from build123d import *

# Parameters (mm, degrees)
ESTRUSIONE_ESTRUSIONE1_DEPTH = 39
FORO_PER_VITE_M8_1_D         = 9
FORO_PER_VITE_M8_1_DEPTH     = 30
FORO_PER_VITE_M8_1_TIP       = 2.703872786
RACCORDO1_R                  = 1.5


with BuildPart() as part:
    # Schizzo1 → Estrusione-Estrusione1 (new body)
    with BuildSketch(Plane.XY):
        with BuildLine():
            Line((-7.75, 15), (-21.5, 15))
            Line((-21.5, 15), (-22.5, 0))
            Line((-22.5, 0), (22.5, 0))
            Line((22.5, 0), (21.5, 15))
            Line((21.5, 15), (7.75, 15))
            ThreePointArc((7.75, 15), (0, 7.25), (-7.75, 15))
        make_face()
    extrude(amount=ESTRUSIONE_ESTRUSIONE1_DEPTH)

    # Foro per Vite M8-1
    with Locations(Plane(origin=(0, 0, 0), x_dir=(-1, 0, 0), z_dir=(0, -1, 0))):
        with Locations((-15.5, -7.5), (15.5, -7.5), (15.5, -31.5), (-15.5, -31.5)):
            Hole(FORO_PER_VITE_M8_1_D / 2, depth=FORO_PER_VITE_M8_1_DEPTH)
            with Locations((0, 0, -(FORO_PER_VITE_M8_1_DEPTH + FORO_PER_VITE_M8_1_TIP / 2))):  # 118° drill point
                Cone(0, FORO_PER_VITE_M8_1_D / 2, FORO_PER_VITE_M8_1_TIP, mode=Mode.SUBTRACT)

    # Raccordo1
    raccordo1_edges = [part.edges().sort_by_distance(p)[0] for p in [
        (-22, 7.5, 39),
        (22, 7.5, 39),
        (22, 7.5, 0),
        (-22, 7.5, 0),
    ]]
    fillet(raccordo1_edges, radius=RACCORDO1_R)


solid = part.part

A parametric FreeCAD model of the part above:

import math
import FreeCAD as App
import Part
import Sketcher
from FreeCAD import Vector
Q = App.Units.Quantity


def edges_at(feature, points):
    """Names of the edges that pass closest to the given points."""
    edges = feature.Shape.Edges
    near = lambda p: min(range(len(edges)), key=lambda i: edges[i].distToShape(Part.Vertex(*p))[0])
    return sorted({f"Edge{near(p) + 1}" for p in points})

doc = App.newDocument("Part")
body = doc.addObject("PartDesign::Body", "Body")

# Sketch on XY plane
sketch1 = body.newObject("Sketcher::SketchObject", "Sketch")
sketch1.AttachmentSupport = (doc.getObject("XY_Plane"), [""])
sketch1.MapMode = "FlatFace"
sketch1.addGeometry(Part.LineSegment(Vector(-7.75, 15, 0), Vector(-21.5, 15, 0)), False)
sketch1.addGeometry(Part.LineSegment(Vector(-21.5, 15, 0), Vector(-22.5, 0, 0)), False)
sketch1.addGeometry(Part.LineSegment(Vector(-22.5, 0, 0), Vector(22.5, 0, 0)), False)
sketch1.addGeometry(Part.LineSegment(Vector(22.5, 0, 0), Vector(21.5, 15, 0)), False)
sketch1.addGeometry(Part.LineSegment(Vector(21.5, 15, 0), Vector(7.75, 15, 0)), False)
sketch1.addGeometry(Part.ArcOfCircle(Part.Circle(Vector(0, 15, 0), Vector(0, 0, 1), 7.75), math.radians(180), math.radians(360)), False)
sketch1.addConstraint(Sketcher.Constraint("Coincident", 0, 2, 1, 1))
sketch1.addConstraint(Sketcher.Constraint("Coincident", 1, 2, 2, 1))
sketch1.addConstraint(Sketcher.Constraint("Coincident", 2, 2, 3, 1))
sketch1.addConstraint(Sketcher.Constraint("Coincident", 3, 2, 4, 1))
sketch1.addConstraint(Sketcher.Constraint("Coincident", 4, 2, 5, 2))
sketch1.addConstraint(Sketcher.Constraint("Coincident", 5, 1, 0, 1))
sketch1.addConstraint(Sketcher.Constraint("Horizontal", 0))
sketch1.addConstraint(Sketcher.Constraint("Horizontal", 2))
sketch1.addConstraint(Sketcher.Constraint("Horizontal", 4))
sketch1.addConstraint(Sketcher.Constraint("Symmetric", 1, 2, 2, 2, -1, 1))
sketch1.addConstraint(Sketcher.Constraint("Symmetric", 0, 2, 3, 2, -2))
sketch1.addConstraint(Sketcher.Constraint("PointOnObject", 5, 3, -2))
sketch1.addConstraint(Sketcher.Constraint("Horizontal", 5, 3, 0, 2))
sketch1.addConstraint(Sketcher.Constraint("DistanceX", 2, 1, 2, 2, Q("45 mm")))
sketch1.addConstraint(Sketcher.Constraint("Radius", 5, Q("7.75 mm")))
sketch1.addConstraint(Sketcher.Constraint("DistanceY", -1, 1, 5, 3, Q("15 mm")))
sketch1.addConstraint(Sketcher.Constraint("DistanceX", 1, 2, 0, 2, Q("1 mm")))
pad1 = body.newObject("PartDesign::Pad", "Pad")
pad1.Profile = sketch1
pad1.Length = 39

# Sketch on XZ plane
sketch2 = body.newObject("Sketcher::SketchObject", "Sketch001")
sketch2.AttachmentSupport = (doc.getObject("XZ_Plane"), [""])
sketch2.MapMode = "FlatFace"
sketch2.addGeometry(Part.Circle(Vector(15.5, 7.5, 0), Vector(0, 0, 1), 4.5), False)
sketch2.addGeometry(Part.Circle(Vector(-15.5, 7.5, 0), Vector(0, 0, 1), 4.5), False)
sketch2.addGeometry(Part.Circle(Vector(-15.5, 31.5, 0), Vector(0, 0, 1), 4.5), False)
sketch2.addGeometry(Part.Circle(Vector(15.5, 31.5, 0), Vector(0, 0, 1), 4.5), False)
sketch2.addConstraint(Sketcher.Constraint("Equal", 0, 1))
sketch2.addConstraint(Sketcher.Constraint("Equal", 1, 2))
sketch2.addConstraint(Sketcher.Constraint("Equal", 2, 3))
sketch2.addConstraint(Sketcher.Constraint("Symmetric", 0, 3, 1, 3, -2))
sketch2.addConstraint(Sketcher.Constraint("Symmetric", 2, 3, 3, 3, -2))
sketch2.addConstraint(Sketcher.Constraint("Vertical", 1, 3, 2, 3))
sketch2.addConstraint(Sketcher.Constraint("Diameter", 0, Q("9 mm")))
sketch2.addConstraint(Sketcher.Constraint("DistanceX", 1, 3, 0, 3, Q("31 mm")))
sketch2.addConstraint(Sketcher.Constraint("DistanceY", 1, 3, 2, 3, Q("24 mm")))
sketch2.addConstraint(Sketcher.Constraint("DistanceY", -1, 1, 0, 3, Q("7.5 mm")))
doc.recompute()
hole = body.newObject("PartDesign::Hole", "Hole")
hole.Profile = sketch2
hole.ThreadType = "None"
hole.Diameter = 9
hole.DepthType = "Dimension"
hole.Depth = 30
hole.DrillPoint = "Angled"
hole.DrillPointAngle = 118
doc.recompute()

fillet = body.newObject("PartDesign::Fillet", "Fillet")
fillet.Base = (hole, edges_at(hole, [
    (-22, 7.5, 39),
    (22, 7.5, 39),
    (22, 7.5, 0),
    (-22, 7.5, 0),
]))
fillet.Radius = 1.5

doc.recompute()
